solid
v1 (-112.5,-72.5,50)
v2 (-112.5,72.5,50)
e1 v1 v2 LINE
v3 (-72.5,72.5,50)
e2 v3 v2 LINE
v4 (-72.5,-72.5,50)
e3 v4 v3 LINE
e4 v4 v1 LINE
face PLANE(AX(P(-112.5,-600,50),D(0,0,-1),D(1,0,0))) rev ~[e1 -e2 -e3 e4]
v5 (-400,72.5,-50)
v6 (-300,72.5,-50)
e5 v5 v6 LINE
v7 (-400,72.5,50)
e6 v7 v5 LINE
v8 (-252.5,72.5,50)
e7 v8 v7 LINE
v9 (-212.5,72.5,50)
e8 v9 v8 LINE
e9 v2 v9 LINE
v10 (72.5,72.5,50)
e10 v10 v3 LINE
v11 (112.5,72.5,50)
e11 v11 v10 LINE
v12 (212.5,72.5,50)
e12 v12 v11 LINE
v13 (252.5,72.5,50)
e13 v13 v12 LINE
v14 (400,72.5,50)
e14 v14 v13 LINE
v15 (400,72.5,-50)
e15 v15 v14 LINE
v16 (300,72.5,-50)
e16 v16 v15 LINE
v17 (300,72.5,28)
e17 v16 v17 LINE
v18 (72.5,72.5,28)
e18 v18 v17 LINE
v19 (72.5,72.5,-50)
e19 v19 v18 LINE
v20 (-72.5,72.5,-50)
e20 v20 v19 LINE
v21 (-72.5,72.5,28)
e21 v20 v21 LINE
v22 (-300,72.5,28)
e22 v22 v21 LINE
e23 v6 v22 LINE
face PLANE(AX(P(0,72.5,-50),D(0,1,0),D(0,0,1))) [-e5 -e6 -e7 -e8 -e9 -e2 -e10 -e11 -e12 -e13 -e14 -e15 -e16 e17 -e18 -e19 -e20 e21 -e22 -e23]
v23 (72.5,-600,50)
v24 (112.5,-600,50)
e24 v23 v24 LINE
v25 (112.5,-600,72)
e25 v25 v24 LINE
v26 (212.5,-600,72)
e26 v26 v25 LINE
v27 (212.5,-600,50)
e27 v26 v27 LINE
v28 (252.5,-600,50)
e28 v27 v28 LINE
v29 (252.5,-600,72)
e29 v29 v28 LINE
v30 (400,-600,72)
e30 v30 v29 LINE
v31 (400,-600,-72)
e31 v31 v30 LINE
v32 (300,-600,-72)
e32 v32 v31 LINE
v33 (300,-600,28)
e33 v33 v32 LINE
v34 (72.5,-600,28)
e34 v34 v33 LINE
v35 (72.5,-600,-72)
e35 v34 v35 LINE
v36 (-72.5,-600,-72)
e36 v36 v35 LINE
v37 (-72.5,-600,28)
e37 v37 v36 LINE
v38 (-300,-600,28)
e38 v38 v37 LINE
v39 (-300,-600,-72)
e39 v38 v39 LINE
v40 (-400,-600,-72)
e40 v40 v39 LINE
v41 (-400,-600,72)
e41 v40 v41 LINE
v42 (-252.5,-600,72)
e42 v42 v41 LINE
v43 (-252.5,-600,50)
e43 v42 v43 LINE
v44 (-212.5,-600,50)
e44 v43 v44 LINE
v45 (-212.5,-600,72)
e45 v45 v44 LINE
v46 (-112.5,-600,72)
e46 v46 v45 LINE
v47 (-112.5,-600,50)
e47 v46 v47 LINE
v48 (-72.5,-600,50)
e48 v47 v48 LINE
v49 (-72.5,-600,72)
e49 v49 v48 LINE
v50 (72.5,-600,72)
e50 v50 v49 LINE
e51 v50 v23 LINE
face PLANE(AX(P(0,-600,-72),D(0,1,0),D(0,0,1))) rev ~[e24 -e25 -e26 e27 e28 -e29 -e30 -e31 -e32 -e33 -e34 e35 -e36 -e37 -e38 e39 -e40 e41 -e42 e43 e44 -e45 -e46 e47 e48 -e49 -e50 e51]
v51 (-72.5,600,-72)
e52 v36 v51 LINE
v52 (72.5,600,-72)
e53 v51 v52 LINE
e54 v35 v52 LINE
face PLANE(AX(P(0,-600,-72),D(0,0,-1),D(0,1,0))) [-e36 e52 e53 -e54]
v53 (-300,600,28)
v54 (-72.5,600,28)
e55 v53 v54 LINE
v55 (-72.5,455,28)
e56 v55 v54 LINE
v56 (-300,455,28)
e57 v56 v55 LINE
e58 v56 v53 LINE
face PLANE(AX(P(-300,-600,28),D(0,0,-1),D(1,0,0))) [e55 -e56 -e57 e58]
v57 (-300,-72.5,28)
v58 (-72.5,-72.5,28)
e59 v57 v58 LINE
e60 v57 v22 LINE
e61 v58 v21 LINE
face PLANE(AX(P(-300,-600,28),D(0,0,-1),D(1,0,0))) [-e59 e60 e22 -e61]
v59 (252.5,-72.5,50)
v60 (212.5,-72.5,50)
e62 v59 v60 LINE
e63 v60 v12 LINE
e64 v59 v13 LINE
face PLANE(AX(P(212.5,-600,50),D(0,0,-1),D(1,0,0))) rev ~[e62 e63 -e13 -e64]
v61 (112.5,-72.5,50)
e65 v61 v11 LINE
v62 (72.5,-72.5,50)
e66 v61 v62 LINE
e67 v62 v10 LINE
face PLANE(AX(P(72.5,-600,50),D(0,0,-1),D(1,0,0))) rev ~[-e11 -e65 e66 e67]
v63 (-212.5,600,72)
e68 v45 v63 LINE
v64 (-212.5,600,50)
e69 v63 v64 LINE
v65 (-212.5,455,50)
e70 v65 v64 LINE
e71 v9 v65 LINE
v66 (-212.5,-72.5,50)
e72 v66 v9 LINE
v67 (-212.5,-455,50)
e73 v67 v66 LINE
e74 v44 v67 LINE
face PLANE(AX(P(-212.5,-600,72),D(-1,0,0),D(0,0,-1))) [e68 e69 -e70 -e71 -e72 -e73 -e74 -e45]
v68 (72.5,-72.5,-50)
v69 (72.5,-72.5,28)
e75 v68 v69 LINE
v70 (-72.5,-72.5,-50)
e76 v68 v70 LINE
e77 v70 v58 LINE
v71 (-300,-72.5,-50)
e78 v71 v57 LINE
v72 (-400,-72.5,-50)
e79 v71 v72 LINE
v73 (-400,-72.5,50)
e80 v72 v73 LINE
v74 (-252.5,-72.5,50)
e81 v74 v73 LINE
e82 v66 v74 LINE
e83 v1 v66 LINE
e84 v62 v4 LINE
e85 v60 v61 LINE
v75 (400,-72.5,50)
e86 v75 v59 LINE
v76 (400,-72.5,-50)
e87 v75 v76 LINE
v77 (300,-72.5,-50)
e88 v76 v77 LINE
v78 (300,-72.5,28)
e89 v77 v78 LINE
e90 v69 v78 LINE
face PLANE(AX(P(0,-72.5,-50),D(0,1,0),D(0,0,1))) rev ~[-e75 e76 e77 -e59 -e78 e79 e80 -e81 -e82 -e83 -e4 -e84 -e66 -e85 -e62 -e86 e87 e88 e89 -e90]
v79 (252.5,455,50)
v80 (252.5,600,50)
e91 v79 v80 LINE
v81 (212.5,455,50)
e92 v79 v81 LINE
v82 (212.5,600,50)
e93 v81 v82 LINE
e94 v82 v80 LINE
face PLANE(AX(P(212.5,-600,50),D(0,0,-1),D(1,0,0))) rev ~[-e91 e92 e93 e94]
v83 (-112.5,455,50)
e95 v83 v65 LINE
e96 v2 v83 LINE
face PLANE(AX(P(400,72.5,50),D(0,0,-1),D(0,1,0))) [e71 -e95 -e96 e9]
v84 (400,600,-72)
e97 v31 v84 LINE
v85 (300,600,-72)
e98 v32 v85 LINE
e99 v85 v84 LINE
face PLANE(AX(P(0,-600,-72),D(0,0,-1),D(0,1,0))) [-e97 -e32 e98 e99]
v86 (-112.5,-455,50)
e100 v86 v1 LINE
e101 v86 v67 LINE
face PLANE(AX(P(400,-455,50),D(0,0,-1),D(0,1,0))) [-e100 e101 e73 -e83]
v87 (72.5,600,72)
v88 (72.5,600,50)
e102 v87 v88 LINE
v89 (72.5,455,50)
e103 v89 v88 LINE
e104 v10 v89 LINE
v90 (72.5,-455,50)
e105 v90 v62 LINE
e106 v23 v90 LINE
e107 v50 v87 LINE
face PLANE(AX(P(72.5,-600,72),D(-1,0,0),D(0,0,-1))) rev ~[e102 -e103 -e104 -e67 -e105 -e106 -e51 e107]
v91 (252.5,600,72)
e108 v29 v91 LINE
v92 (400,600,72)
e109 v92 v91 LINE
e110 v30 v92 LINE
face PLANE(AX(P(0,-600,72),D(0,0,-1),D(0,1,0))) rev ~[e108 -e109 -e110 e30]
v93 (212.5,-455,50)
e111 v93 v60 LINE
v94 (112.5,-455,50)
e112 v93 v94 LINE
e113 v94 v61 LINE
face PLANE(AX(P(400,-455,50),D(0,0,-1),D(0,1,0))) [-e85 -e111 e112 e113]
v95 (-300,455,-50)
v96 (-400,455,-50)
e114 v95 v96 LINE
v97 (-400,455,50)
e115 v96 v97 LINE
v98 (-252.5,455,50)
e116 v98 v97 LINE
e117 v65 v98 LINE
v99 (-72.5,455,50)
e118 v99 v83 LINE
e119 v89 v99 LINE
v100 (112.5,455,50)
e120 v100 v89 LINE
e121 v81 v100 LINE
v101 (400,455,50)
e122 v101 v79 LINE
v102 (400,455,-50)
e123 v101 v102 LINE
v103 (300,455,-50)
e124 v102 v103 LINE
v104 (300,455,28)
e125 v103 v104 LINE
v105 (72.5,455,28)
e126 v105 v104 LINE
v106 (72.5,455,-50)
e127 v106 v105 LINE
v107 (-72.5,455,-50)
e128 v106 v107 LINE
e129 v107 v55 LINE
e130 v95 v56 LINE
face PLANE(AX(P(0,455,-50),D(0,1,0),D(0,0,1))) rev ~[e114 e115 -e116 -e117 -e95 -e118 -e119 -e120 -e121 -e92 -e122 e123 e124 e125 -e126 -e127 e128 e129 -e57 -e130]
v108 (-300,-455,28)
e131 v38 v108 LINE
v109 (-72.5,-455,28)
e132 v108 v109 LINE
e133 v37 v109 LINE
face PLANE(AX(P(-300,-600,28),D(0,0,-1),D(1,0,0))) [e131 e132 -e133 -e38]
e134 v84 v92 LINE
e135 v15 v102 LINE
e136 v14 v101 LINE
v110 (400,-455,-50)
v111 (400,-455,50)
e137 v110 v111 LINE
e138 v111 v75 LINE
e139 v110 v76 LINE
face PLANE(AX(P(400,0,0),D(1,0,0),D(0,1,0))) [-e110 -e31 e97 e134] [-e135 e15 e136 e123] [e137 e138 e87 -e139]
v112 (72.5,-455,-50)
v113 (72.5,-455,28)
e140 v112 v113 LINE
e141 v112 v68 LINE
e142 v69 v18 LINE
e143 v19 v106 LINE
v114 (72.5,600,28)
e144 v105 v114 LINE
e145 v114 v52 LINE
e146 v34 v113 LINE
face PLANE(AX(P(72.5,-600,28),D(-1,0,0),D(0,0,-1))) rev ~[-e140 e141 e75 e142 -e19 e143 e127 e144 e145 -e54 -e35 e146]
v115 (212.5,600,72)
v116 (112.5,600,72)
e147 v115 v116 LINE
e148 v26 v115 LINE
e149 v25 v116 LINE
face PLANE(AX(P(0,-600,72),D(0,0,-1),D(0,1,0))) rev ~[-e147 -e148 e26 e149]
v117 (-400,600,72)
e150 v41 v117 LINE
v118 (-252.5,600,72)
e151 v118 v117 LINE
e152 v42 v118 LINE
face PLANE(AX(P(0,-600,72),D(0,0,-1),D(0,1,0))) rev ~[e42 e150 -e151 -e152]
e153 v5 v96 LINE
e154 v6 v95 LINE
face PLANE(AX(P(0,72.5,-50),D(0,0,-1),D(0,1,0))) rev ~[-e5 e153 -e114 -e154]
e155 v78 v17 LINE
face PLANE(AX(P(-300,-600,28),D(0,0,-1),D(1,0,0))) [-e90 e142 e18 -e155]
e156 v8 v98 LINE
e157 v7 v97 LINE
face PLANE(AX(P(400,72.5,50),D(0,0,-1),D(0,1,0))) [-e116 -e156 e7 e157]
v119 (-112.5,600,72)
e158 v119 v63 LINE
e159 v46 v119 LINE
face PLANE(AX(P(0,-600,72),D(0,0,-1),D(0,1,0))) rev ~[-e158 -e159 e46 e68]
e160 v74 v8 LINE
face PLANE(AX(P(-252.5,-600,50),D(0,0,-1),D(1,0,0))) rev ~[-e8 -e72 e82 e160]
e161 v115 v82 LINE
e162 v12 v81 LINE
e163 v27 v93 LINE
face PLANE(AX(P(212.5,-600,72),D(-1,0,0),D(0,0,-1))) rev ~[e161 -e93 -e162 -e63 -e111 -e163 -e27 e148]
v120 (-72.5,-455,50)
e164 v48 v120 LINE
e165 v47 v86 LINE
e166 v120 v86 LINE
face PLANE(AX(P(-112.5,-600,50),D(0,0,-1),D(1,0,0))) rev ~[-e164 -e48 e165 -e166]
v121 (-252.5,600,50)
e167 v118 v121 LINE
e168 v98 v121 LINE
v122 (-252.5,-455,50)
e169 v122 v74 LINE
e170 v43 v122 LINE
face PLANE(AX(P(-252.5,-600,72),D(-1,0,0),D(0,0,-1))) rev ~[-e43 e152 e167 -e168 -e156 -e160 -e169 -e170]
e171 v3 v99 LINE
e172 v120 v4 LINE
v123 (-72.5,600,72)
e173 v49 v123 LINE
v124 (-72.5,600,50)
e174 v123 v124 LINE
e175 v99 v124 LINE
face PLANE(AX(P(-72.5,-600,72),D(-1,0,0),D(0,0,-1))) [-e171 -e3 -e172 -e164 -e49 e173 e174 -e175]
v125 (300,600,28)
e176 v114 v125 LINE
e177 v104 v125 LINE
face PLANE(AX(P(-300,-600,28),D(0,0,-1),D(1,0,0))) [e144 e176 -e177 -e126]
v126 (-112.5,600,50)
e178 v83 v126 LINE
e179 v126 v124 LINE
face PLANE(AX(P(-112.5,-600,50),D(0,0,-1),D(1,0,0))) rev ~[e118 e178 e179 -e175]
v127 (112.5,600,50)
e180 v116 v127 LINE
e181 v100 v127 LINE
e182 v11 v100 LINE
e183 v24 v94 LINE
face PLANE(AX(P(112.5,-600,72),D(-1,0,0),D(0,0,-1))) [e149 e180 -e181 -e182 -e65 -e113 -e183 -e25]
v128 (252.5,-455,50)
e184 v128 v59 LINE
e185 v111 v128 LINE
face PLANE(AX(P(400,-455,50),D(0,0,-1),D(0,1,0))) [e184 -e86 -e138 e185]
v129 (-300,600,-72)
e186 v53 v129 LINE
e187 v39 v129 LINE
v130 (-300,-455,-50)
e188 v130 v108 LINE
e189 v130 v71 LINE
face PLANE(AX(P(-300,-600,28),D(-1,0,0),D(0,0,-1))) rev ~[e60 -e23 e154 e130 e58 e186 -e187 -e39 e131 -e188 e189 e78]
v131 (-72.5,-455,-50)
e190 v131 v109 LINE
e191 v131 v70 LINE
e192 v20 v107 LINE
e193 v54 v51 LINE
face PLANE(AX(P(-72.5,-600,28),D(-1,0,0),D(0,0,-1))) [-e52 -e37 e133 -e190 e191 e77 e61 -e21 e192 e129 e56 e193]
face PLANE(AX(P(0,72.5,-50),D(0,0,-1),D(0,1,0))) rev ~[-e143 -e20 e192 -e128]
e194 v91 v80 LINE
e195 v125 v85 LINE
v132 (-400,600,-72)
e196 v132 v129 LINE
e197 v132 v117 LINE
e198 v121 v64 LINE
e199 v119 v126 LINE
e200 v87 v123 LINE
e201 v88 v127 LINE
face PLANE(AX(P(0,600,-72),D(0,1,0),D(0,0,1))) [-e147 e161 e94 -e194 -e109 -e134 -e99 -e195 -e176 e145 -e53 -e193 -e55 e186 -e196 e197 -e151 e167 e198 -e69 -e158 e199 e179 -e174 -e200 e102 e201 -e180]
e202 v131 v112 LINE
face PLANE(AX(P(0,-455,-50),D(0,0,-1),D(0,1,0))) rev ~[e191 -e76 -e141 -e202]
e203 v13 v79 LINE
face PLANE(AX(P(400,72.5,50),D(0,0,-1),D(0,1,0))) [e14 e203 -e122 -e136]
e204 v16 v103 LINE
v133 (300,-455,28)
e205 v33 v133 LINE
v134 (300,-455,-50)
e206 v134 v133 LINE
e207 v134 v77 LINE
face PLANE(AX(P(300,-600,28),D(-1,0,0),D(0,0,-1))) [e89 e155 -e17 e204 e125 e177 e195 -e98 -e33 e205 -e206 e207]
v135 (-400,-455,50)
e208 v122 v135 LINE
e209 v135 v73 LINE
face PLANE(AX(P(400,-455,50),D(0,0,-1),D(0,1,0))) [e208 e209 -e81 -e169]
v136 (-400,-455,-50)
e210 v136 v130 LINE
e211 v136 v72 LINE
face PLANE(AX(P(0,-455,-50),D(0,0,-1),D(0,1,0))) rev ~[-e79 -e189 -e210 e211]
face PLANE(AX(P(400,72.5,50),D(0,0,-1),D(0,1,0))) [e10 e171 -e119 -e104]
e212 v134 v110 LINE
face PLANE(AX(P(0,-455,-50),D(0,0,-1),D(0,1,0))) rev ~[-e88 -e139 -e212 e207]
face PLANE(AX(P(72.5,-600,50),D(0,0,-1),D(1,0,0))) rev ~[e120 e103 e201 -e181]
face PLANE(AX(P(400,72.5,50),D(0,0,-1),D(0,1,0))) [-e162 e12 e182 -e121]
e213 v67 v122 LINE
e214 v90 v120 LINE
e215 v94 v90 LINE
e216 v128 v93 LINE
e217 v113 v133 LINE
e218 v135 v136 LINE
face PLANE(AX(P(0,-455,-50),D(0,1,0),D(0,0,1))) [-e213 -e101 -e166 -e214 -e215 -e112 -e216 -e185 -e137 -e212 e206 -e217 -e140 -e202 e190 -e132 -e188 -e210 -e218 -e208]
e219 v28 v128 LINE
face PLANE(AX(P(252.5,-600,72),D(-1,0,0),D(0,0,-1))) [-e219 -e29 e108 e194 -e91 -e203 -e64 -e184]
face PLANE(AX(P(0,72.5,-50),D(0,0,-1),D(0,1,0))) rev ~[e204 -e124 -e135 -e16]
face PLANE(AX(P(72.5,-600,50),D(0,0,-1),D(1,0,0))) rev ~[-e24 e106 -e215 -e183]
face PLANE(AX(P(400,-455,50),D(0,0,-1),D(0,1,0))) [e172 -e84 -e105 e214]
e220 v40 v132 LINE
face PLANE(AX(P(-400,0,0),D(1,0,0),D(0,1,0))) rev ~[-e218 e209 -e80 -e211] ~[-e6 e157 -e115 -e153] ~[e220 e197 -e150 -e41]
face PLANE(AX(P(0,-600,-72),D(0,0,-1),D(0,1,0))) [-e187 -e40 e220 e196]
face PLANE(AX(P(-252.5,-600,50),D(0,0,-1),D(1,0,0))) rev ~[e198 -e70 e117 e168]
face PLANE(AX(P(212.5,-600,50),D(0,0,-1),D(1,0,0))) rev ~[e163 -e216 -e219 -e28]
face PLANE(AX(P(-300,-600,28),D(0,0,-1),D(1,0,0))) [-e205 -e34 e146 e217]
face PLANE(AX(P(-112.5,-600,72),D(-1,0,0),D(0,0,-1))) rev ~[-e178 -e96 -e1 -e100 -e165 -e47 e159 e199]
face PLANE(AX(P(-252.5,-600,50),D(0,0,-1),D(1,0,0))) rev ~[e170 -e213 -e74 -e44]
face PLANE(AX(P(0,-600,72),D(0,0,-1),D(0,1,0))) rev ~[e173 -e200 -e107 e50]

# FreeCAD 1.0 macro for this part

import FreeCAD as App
import Part
import Sketcher
Q = App.Units.Quantity


def add_polygon(sketch, points):
    """Adds a closed chain of lines whose ends are joined by coincident constraints."""
    first, n = sketch.GeometryCount, len(points)
    for a, b in zip(points, points[1:] + points[:1]):
        sketch.addGeometry(Part.LineSegment(App.Vector(*a, 0), App.Vector(*b, 0)), False)
    for i in range(n):
        sketch.addConstraint(Sketcher.Constraint("Coincident", first + i, 2, first + (i + 1) % n, 1))

doc = App.newDocument("Part")
body = doc.addObject("PartDesign::Body", "Body")

sketch1 = body.newObject("Sketcher::SketchObject", "Sketch")
sketch1.AttachmentSupport = (doc.getObject("YZ_Plane"), [""])
sketch1.MapMode = "FlatFace"
add_polygon(sketch1, [(-600, 72), (-600, -72), (600, -72), (600, 72)])
add_polygon(sketch1, [(-72, -50), (-455, -50), (-455, 28), (-72, 28)])
add_polygon(sketch1, [(455, -50), (72, -50), (72, 28), (455, 28)])
sketch1.addConstraint([
    Sketcher.Constraint("Vertical", 0),
    Sketcher.Constraint("Horizontal", 1),
    Sketcher.Constraint("Vertical", 2),
    Sketcher.Constraint("Horizontal", 3),
    Sketcher.Constraint("Horizontal", 4),
    Sketcher.Constraint("Vertical", 5),
    Sketcher.Constraint("Horizontal", 6),
    Sketcher.Constraint("Vertical", 7),
    Sketcher.Constraint("Horizontal", 8),
    Sketcher.Constraint("Vertical", 9),
    Sketcher.Constraint("Horizontal", 10),
    Sketcher.Constraint("Vertical", 11),
    Sketcher.Constraint("Symmetric", 0, 2, 2, 2, -1, 1),
    Sketcher.Constraint("Symmetric", 7, 2, 8, 2, -2),
    Sketcher.Constraint("Symmetric", 5, 2, 10, 2, -2),
    Sketcher.Constraint("DistanceX", 1, 1, 1, 2, Q("1200 mm")),
    Sketcher.Constraint("DistanceY", 0, 2, 0, 1, Q("144 mm")),
    Sketcher.Constraint("DistanceY", 5, 1, 5, 2, Q("78 mm")),
    Sketcher.Constraint("DistanceX", 4, 2, 4, 1, Q("382.5 mm")),
    Sketcher.Constraint("DistanceX", 4, 2, -1, 1, Q("455 mm")),
    Sketcher.Constraint("DistanceY", 4, 2, -1, 1, Q("50 mm")),
])
pad1 = body.newObject("PartDesign::Pad", "Pad")
pad1.Profile = sketch1
pad1.Type = "TwoLengths"
pad1.Length = 400
pad1.Length2 = 400

sketch2 = body.newObject("Sketcher::SketchObject", "Sketch001")
sketch2.AttachmentSupport = (doc.getObject("XZ_Plane"), [""])
sketch2.MapMode = "FlatFace"
sketch2.AttachmentOffset = App.Placement(App.Vector(0, 0, 600), App.Rotation())
add_polygon(sketch2, [(300, 28), (72, 28), (72, -72), (300, -72)])
add_polygon(sketch2, [(112, 72), (72, 72), (72, 50), (112, 50)])
add_polygon(sketch2, [(252, 72), (212, 72), (212, 50), (252, 50)])
sketch2.addConstraint([
    Sketcher.Constraint("Horizontal", 0),
    Sketcher.Constraint("Vertical", 1),
    Sketcher.Constraint("Horizontal", 2),
    Sketcher.Constraint("Vertical", 3),
    Sketcher.Constraint("Horizontal", 4),
    Sketcher.Constraint("Vertical", 5),
    Sketcher.Constraint("Horizontal", 6),
    Sketcher.Constraint("Vertical", 7),
    Sketcher.Constraint("Horizontal", 8),
    Sketcher.Constraint("Vertical", 9),
    Sketcher.Constraint("Horizontal", 10),
    Sketcher.Constraint("Vertical", 11),
    Sketcher.Constraint("Symmetric", 1, 2, 4, 2, -1),
    Sketcher.Constraint("Horizontal", 7, 2, 8, 2),
    Sketcher.Constraint("Horizontal", 6, 2, 9, 2),
    Sketcher.Constraint("Equal", 6, 8),
    Sketcher.Constraint("DistanceX", 4, 2, 4, 1, Q("40 mm")),
    Sketcher.Constraint("DistanceY", 1, 2, 1, 1, Q("100 mm")),
    Sketcher.Constraint("DistanceY", 5, 2, 5, 1, Q("22 mm")),
    Sketcher.Constraint("DistanceX", 0, 2, 0, 1, Q("227.5 mm")),
    Sketcher.Constraint("DistanceY", -1, 1, 0, 2, Q("28 mm")),
    Sketcher.Constraint("DistanceX", -1, 1, 2, 2, Q("300 mm")),
    Sketcher.Constraint("DistanceX", 7, 2, 8, 2, Q("100 mm")),
])
pocket1 = body.newObject("PartDesign::Pocket", "Pocket")
pocket1.Profile = sketch2
pocket1.Length = 1200

sketch3 = body.newObject("Sketcher::SketchObject", "Sketch002")
sketch3.AttachmentSupport = (doc.getObject("XZ_Plane"), [""])
sketch3.MapMode = "FlatFace"
sketch3.AttachmentOffset = App.Placement(App.Vector(0, 0, 600), App.Rotation())
add_polygon(sketch3, [(-72, 28), (-300, 28), (-300, -72), (-72, -72)])
add_polygon(sketch3, [(-72, 72), (-112, 72), (-112, 50), (-72, 50)])
add_polygon(sketch3, [(-212, 72), (-252, 72), (-252, 50), (-212, 50)])
sketch3.addConstraint([
    Sketcher.Constraint("Horizontal", 0),
    Sketcher.Constraint("Vertical", 1),
    Sketcher.Constraint("Horizontal", 2),
    Sketcher.Constraint("Vertical", 3),
    Sketcher.Constraint("Horizontal", 4),
    Sketcher.Constraint("Vertical", 5),
    Sketcher.Constraint("Horizontal", 6),
    Sketcher.Constraint("Vertical", 7),
    Sketcher.Constraint("Horizontal", 8),
    Sketcher.Constraint("Vertical", 9),
    Sketcher.Constraint("Horizontal", 10),
    Sketcher.Constraint("Vertical", 11),
    Sketcher.Constraint("Symmetric", 2, 2, 7, 2, -1),
    Sketcher.Constraint("Horizontal", 7, 2, 8, 2),
    Sketcher.Constraint("Horizontal", 6, 2, 9, 2),
    Sketcher.Constraint("Equal", 6, 8),
    Sketcher.Constraint("DistanceX", 4, 2, 4, 1, Q("40 mm")),
    Sketcher.Constraint("DistanceY", 1, 2, 1, 1, Q("100 mm")),
    Sketcher.Constraint("DistanceY", 5, 2, 5, 1, Q("22 mm")),
    Sketcher.Constraint("DistanceX", 0, 2, 0, 1, Q("227.5 mm")),
    Sketcher.Constraint("DistanceX", 0, 2, -1, 1, Q("300 mm")),
    Sketcher.Constraint("DistanceY", -1, 1, 0, 2, Q("28 mm")),
    Sketcher.Constraint("DistanceX", 8, 2, 4, 2, Q("140 mm")),
])
pocket2 = body.newObject("PartDesign::Pocket", "Pocket001")
pocket2.Profile = sketch3
pocket2.Length = 1200

sketch4 = body.newObject("Sketcher::SketchObject", "Sketch003")
sketch4.AttachmentSupport = (doc.getObject("YZ_Plane"), [""])
sketch4.MapMode = "FlatFace"
sketch4.AttachmentOffset = App.Placement(App.Vector(0, 0, 400), App.Rotation())
add_polygon(sketch4, [(-455, 50), (-455, -50), (-72, -50), (-72, 50)])
sketch4.addConstraint([
    Sketcher.Constraint("Vertical", 0),
    Sketcher.Constraint("Horizontal", 1),
    Sketcher.Constraint("Vertical", 2),
    Sketcher.Constraint("Horizontal", 3),
    Sketcher.Constraint("DistanceY", 0, 2, 0, 1, Q("100 mm")),
    Sketcher.Constraint("DistanceX", 1, 1, 1, 2, Q("382.5 mm")),
    Sketcher.Constraint("DistanceX", 0, 2, -1, 1, Q("455 mm")),
    Sketcher.Constraint("DistanceY", 0, 2, -1, 1, Q("50 mm")),
])
pocket3 = body.newObject("PartDesign::Pocket", "Pocket002")
pocket3.Profile = sketch4
pocket3.Length = 800

sketch5 = body.newObject("Sketcher::SketchObject", "Sketch004")
sketch5.AttachmentSupport = (doc.getObject("YZ_Plane"), [""])
sketch5.MapMode = "FlatFace"
sketch5.AttachmentOffset = App.Placement(App.Vector(0, 0, 400), App.Rotation())
add_polygon(sketch5, [(72, 50), (72, -50), (455, -50), (455, 50)])
sketch5.addConstraint([
    Sketcher.Constraint("Vertical", 0),
    Sketcher.Constraint("Horizontal", 1),
    Sketcher.Constraint("Vertical", 2),
    Sketcher.Constraint("Horizontal", 3),
    Sketcher.Constraint("DistanceY", 0, 2, 0, 1, Q("100 mm")),
    Sketcher.Constraint("DistanceX", 1, 1, 1, 2, Q("382.5 mm")),
    Sketcher.Constraint("DistanceY", 0, 2, -1, 1, Q("50 mm")),
    Sketcher.Constraint("DistanceX", -1, 1, 1, 2, Q("455 mm")),
])
pocket4 = body.newObject("PartDesign::Pocket", "Pocket003")
pocket4.Profile = sketch5
pocket4.Length = 800

doc.recompute()
